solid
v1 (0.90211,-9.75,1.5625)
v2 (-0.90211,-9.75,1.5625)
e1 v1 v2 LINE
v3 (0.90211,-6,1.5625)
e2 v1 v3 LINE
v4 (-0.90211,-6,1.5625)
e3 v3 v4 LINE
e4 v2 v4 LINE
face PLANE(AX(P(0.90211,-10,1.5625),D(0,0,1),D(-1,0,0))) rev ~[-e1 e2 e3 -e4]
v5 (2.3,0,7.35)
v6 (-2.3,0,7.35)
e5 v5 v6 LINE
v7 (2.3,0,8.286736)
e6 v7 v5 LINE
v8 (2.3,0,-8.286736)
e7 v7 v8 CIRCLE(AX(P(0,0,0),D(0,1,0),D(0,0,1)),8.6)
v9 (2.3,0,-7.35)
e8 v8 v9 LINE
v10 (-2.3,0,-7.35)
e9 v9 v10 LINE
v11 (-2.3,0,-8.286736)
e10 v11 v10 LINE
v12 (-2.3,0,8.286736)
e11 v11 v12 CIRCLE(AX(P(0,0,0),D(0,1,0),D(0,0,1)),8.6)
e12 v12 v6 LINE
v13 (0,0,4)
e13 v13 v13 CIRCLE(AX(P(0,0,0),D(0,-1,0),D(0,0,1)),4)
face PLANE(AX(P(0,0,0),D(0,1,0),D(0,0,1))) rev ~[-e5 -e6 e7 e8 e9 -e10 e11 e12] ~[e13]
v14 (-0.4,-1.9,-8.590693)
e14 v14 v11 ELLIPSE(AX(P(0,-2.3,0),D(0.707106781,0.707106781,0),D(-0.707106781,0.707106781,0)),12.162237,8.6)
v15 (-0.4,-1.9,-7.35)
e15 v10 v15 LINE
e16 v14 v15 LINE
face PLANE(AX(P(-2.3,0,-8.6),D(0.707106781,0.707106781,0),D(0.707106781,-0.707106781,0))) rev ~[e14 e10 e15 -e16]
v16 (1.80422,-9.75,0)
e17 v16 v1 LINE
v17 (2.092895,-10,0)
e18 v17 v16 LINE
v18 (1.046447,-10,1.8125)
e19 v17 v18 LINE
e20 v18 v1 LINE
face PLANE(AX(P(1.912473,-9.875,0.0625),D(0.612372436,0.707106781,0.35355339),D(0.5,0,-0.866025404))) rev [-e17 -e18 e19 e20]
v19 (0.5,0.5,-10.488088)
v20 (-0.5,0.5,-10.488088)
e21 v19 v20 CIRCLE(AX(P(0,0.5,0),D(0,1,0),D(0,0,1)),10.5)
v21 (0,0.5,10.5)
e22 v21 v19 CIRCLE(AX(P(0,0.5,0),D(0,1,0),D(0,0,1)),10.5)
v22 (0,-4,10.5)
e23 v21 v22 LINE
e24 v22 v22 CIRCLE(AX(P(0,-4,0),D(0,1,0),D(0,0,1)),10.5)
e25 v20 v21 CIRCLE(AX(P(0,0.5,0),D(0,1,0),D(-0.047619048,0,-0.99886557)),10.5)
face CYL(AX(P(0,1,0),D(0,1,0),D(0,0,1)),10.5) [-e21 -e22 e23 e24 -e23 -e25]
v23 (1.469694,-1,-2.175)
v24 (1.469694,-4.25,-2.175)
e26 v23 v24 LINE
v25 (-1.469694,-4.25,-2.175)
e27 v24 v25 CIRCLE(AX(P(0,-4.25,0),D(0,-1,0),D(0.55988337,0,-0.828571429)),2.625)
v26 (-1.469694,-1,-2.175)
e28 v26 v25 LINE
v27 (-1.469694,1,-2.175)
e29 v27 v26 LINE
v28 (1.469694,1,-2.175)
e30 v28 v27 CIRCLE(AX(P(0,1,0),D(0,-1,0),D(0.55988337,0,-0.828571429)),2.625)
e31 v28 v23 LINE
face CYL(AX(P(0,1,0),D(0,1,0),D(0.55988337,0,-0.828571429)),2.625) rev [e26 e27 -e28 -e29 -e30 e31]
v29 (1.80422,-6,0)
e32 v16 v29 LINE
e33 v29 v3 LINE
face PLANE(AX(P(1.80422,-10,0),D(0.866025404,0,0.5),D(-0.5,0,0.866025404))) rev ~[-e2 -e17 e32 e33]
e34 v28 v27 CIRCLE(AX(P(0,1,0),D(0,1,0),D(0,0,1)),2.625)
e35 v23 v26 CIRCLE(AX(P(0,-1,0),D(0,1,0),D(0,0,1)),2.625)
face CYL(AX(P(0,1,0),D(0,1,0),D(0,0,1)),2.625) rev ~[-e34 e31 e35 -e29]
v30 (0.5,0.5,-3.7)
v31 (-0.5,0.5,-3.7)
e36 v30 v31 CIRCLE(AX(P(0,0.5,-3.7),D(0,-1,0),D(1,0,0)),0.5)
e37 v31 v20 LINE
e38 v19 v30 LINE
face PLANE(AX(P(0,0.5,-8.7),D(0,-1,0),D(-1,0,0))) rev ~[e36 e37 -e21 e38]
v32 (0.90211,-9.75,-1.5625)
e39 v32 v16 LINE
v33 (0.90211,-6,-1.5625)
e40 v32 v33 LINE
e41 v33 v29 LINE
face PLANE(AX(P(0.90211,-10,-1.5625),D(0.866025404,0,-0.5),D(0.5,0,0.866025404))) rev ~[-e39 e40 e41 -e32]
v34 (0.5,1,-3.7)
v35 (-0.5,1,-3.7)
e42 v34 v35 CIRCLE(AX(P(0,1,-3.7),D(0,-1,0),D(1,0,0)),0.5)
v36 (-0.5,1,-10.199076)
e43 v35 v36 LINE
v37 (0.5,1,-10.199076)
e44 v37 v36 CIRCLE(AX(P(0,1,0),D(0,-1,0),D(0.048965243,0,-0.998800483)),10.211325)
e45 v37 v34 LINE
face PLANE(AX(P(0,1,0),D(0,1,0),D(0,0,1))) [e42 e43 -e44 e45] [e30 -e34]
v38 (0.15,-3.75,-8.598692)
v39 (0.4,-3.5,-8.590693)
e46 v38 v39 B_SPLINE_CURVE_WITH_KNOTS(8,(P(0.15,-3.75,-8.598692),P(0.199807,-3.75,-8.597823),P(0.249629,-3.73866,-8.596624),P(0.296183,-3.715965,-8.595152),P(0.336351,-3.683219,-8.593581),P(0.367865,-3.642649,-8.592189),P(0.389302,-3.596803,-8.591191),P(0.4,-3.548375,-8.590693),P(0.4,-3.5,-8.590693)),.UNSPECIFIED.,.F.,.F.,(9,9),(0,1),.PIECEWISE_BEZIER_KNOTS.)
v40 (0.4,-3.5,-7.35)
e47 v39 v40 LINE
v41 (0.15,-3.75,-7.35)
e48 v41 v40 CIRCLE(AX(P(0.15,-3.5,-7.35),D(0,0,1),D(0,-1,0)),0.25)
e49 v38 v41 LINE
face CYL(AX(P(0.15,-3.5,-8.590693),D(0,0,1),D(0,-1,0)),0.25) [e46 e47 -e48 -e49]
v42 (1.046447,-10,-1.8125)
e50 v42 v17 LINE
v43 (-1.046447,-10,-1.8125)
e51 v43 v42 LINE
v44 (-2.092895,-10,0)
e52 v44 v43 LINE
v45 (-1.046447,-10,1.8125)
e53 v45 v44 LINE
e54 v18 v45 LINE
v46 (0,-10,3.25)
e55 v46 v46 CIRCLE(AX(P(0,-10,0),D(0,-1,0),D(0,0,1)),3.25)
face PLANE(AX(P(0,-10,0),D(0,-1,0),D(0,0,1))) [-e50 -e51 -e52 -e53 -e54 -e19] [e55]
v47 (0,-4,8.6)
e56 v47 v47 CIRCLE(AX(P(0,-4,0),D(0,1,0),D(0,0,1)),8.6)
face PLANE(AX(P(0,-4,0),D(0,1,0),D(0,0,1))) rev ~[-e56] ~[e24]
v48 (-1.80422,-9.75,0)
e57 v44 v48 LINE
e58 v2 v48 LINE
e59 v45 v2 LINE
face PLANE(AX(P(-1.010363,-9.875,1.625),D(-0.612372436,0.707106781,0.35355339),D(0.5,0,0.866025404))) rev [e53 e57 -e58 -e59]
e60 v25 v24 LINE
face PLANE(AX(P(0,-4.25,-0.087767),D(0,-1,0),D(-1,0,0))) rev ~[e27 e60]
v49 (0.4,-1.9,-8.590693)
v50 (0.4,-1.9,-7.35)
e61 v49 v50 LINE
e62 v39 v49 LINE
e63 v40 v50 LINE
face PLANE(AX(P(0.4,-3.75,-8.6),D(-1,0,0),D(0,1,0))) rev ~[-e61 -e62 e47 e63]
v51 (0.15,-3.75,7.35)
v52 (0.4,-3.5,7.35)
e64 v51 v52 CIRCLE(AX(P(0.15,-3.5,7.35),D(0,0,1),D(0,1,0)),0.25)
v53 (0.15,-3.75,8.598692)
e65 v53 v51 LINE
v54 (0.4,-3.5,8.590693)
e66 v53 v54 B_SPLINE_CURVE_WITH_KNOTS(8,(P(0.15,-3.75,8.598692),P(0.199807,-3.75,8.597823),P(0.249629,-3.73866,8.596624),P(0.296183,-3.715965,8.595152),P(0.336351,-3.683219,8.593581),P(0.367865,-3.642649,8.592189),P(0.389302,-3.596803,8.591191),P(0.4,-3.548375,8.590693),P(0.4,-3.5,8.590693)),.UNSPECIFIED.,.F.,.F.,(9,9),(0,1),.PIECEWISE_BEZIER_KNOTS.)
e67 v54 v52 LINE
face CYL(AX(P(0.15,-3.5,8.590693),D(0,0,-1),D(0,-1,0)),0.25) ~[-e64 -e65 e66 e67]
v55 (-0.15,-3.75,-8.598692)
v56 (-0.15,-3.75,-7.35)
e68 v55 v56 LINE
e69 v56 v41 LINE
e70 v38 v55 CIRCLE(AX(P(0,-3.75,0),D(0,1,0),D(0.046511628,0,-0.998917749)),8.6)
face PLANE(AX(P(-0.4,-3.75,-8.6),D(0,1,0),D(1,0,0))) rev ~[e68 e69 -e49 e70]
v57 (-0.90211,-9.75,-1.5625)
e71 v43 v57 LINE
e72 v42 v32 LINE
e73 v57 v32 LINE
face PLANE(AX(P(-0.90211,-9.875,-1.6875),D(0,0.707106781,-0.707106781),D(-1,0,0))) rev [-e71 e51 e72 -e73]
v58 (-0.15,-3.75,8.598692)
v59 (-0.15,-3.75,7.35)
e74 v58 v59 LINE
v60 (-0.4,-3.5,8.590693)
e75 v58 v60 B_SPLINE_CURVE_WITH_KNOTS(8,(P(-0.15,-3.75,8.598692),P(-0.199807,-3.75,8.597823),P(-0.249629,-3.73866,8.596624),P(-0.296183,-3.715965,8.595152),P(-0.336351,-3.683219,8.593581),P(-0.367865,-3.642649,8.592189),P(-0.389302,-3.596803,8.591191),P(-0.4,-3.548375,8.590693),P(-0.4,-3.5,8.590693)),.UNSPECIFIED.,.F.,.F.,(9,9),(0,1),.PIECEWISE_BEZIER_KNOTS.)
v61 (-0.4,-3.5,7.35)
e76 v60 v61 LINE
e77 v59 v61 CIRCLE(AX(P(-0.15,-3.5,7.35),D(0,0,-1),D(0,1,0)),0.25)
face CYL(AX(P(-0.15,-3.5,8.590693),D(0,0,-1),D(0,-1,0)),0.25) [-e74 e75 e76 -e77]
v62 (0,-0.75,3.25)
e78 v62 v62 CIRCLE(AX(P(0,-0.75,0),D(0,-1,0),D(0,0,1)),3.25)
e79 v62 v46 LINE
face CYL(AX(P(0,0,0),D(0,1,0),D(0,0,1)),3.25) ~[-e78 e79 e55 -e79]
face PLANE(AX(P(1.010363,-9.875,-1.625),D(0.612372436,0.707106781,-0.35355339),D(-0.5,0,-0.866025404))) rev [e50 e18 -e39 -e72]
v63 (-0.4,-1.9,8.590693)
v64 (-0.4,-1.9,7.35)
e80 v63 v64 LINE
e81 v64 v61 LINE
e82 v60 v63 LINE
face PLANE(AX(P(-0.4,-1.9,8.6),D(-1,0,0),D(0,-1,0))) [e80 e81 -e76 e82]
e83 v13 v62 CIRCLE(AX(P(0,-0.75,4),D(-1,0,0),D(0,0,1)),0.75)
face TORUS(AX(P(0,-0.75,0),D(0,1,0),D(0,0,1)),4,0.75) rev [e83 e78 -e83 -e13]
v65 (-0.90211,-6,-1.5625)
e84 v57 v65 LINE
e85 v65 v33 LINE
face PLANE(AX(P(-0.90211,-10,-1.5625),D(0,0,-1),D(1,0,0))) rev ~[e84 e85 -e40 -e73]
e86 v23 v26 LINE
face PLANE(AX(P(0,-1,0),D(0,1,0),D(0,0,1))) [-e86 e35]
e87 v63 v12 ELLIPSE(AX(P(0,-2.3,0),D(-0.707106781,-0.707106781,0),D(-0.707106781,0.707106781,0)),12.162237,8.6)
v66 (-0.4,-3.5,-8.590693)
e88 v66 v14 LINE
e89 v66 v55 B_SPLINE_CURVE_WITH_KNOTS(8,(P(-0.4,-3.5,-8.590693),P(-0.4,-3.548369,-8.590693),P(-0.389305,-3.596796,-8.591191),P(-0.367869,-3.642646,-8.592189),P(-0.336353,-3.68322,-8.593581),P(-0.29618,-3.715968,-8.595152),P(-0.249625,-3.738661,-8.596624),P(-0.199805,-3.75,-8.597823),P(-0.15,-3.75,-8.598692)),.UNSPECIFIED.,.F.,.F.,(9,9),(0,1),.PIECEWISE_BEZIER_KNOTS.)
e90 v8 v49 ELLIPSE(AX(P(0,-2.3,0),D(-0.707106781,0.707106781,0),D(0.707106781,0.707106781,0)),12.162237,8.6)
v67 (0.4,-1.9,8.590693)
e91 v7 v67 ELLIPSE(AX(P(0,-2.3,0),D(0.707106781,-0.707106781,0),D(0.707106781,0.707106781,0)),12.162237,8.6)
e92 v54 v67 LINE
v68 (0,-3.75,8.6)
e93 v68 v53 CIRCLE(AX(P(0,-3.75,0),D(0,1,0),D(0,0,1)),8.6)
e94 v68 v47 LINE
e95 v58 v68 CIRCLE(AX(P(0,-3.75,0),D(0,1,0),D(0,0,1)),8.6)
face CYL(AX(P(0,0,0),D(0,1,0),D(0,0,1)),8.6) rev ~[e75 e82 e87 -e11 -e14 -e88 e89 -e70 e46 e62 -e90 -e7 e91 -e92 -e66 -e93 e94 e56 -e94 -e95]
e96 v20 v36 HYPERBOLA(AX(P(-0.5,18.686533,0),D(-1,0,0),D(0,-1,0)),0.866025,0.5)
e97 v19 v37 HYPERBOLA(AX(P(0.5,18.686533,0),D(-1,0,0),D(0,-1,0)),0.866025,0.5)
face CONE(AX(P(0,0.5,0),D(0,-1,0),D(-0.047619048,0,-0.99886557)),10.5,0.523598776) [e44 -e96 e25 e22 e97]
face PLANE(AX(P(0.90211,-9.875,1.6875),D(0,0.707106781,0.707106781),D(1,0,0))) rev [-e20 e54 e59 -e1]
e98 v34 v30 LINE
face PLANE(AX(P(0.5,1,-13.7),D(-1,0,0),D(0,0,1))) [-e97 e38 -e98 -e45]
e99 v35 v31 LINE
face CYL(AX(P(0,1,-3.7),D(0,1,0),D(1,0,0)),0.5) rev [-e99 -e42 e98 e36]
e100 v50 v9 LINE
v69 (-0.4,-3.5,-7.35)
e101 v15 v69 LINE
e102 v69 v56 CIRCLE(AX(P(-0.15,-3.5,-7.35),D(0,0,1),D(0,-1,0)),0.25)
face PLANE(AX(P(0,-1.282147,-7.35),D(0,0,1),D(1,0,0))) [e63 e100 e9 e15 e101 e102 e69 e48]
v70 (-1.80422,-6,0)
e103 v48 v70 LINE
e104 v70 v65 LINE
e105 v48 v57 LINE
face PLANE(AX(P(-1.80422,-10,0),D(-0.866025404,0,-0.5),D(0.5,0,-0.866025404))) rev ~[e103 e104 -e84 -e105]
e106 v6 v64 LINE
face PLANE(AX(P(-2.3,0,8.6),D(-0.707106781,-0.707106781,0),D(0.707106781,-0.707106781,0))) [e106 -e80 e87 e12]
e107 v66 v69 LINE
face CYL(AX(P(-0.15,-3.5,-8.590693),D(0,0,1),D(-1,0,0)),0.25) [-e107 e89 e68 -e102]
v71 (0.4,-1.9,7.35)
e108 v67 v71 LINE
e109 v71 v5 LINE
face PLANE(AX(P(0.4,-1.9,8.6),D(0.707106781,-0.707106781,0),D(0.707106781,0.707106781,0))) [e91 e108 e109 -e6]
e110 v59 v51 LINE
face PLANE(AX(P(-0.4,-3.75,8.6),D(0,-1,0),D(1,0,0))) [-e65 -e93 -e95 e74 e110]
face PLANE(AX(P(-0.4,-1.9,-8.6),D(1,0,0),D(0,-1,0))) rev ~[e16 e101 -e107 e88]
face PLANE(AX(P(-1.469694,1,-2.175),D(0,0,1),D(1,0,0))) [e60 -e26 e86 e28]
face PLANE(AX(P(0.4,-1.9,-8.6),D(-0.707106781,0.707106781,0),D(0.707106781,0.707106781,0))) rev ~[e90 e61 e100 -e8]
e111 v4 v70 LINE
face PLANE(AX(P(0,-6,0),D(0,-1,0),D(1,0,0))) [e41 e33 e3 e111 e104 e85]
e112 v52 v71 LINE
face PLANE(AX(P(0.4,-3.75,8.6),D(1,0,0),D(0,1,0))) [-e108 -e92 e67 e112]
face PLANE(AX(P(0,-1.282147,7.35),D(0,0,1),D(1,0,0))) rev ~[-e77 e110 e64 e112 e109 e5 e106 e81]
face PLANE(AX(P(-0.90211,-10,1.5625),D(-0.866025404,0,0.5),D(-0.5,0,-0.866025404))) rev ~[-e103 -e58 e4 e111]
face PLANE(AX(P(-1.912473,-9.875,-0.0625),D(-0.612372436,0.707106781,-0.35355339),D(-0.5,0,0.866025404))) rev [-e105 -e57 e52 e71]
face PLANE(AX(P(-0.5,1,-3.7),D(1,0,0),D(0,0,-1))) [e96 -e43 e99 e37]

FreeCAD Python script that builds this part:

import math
import FreeCAD as App
import Part
import Sketcher
from FreeCAD import Vector
Q = App.Units.Quantity


def edges_at(feature, points):
    """Names of the edges that pass closest to the given points."""
    edges = feature.Shape.Edges
    near = lambda p: min(range(len(edges)), key=lambda i: edges[i].distToShape(Part.Vertex(*p))[0])
    return sorted({f"Edge{near(p) + 1}" for p in points})


def add_polygon(sketch, points):
    """Adds a closed chain of lines whose ends are joined by coincident constraints."""
    first, n = sketch.GeometryCount, len(points)
    for a, b in zip(points, points[1:] + points[:1]):
        sketch.addGeometry(Part.LineSegment(App.Vector(*a, 0), App.Vector(*b, 0)), False)
    for i in range(n):
        sketch.addConstraint(Sketcher.Constraint("Coincident", first + i, 2, first + (i + 1) % n, 1))

doc = App.newDocument("Part")
body = doc.addObject("PartDesign::Body", "Body")

sketch1 = body.newObject("Sketcher::SketchObject", "Sketch")
sketch1.AttachmentSupport = (doc.getObject("XZ_Plane"), [""])
sketch1.MapMode = "FlatFace"
sketch1.addGeometry(Part.Circle(Vector(0, 0, 0), Vector(0, 0, 1), 10), False)
sketch1.addGeometry(Part.Circle(Vector(0, 0, 0), Vector(0, 0, 1), 9), False)
sketch1.addConstraint(Sketcher.Constraint("Coincident", 0, 3, -1, 1))
sketch1.addConstraint(Sketcher.Constraint("Coincident", 1, 3, -1, 1))
sketch1.addConstraint(Sketcher.Constraint("Diameter", 0, Q("21 mm")))
sketch1.addConstraint(Sketcher.Constraint("Diameter", 1, Q("17.2 mm")))
pad1 = body.newObject("PartDesign::Pad", "Pad")
pad1.Profile = sketch1
pad1.Length = 4

sketch2 = body.newObject("Sketcher::SketchObject", "Sketch001")
sketch2.AttachmentSupport = (doc.getObject("XY_Plane"), [""])
sketch2.MapMode = "FlatFace"
sketch2.AttachmentOffset = App.Placement(Vector(0, 0, 8.6), App.Rotation())
add_polygon(sketch2, [(0.4, -3.8), (-0.4, -3.8), (-0.4, -1.9), (-2.3, 0), (2.3, 0), (0.4, -1.9)])
sketch2.addConstraint(Sketcher.Constraint("Horizontal", 0))
sketch2.addConstraint(Sketcher.Constraint("Vertical", 1))
sketch2.addConstraint(Sketcher.Constraint("Horizontal", 3))
sketch2.addConstraint(Sketcher.Constraint("Vertical", 5))
sketch2.addConstraint(Sketcher.Constraint("Symmetric", 2, 2, 3, 2, -1, 1))
sketch2.addConstraint(Sketcher.Constraint("Symmetric", 1, 2, 4, 2, -2))
sketch2.addConstraint(Sketcher.Constraint("Perpendicular", 2, 4))
sketch2.addConstraint(Sketcher.Constraint("DistanceX", 0, 2, 0, 1, Q("0.8 mm")))
sketch2.addConstraint(Sketcher.Constraint("DistanceX", 3, 1, 3, 2, Q("4.6 mm")))
sketch2.addConstraint(Sketcher.Constraint("DistanceY", 1, 1, 1, 2, Q("1.85 mm")))
pad2 = body.newObject("PartDesign::Pad", "Pad001")
pad2.Profile = sketch2
pad2.Length = 1.25
pad2.Reversed = True

sketch3 = body.newObject("Sketcher::SketchObject", "Sketch002")
sketch3.AttachmentSupport = (doc.getObject("XY_Plane"), [""])
sketch3.MapMode = "FlatFace"
sketch3.AttachmentOffset = App.Placement(Vector(0, 0, -8.6), App.Rotation())
add_polygon(sketch3, [(0.4, -3.8), (-0.4, -3.8), (-0.4, -1.9), (-2.3, 0), (2.3, 0), (0.4, -1.9)])
sketch3.addConstraint(Sketcher.Constraint("Horizontal", 0))
sketch3.addConstraint(Sketcher.Constraint("Vertical", 1))
sketch3.addConstraint(Sketcher.Constraint("Horizontal", 3))
sketch3.addConstraint(Sketcher.Constraint("Vertical", 5))
sketch3.addConstraint(Sketcher.Constraint("Symmetric", 2, 2, 3, 2, -1, 1))
sketch3.addConstraint(Sketcher.Constraint("Symmetric", 1, 2, 4, 2, -2))
sketch3.addConstraint(Sketcher.Constraint("Perpendicular", 2, 4))
sketch3.addConstraint(Sketcher.Constraint("DistanceX", 0, 2, 0, 1, Q("0.8 mm")))
sketch3.addConstraint(Sketcher.Constraint("DistanceX", 3, 1, 3, 2, Q("4.6 mm")))
sketch3.addConstraint(Sketcher.Constraint("DistanceY", 1, 1, 1, 2, Q("1.85 mm")))
pad3 = body.newObject("PartDesign::Pad", "Pad002")
pad3.Profile = sketch3
pad3.Length = 1.25

sketch4 = body.newObject("Sketcher::SketchObject", "Sketch003")
sketch4.AttachmentSupport = (doc.getObject("XZ_Plane"), [""])
sketch4.MapMode = "FlatFace"
sketch4.AttachmentOffset = App.Placement(Vector(0, 0, -1), App.Rotation())
sketch4.addGeometry(Part.Circle(Vector(0, 0, 0), Vector(0, 0, 1), 10), False)
sketch4.addConstraint(Sketcher.Constraint("Coincident", 0, 3, -1, 1))
sketch4.addConstraint(Sketcher.Constraint("Diameter", 0, Q("21 mm")))
pad4 = body.newObject("PartDesign::Pad", "Pad003")
pad4.Profile = sketch4
pad4.Length = 1

sketch5 = body.newObject("Sketcher::SketchObject", "Sketch004")
sketch5.AttachmentSupport = (doc.getObject("XZ_Plane"), [""])
sketch5.MapMode = "FlatFace"
sketch5.addGeometry(Part.Circle(Vector(0, 0, 0), Vector(0, 0, 1), 3.2), False)
sketch5.addConstraint(Sketcher.Constraint("Coincident", 0, 3, -1, 1))
sketch5.addConstraint(Sketcher.Constraint("Diameter", 0, Q("6.5 mm")))
pad5 = body.newObject("PartDesign::Pad", "Pad004")
pad5.Profile = sketch5
pad5.Length = 10
doc.recompute()

fillet = body.newObject("PartDesign::Fillet", "Fillet")
fillet.Base = (pad5, edges_at(pad5, [(0, 0, -3.25)]))
fillet.Radius = 0.75

sketch6 = body.newObject("Sketcher::SketchObject", "Sketch005")
sketch6.AttachmentSupport = (doc.getObject("XZ_Plane"), [""])
sketch6.MapMode = "FlatFace"
sketch6.AttachmentOffset = App.Placement(Vector(0, 0, -1), App.Rotation())
sketch6.addGeometry(Part.LineSegment(Vector(1.5, -2.2, 0), Vector(-1.5, -2.2, 0)), False)
sketch6.addGeometry(Part.ArcOfCircle(Part.Circle(Vector(0, 0, 0), Vector(0, 0, 1), 2.6), math.radians(-56), math.radians(236)), False)
sketch6.addConstraint(Sketcher.Constraint("Coincident", 0, 1, 1, 1))
sketch6.addConstraint(Sketcher.Constraint("Coincident", 1, 2, 0, 2))
sketch6.addConstraint(Sketcher.Constraint("Horizontal", 0))
sketch6.addConstraint(Sketcher.Constraint("Coincident", 1, 3, -1, 1))
sketch6.addConstraint(Sketcher.Constraint("Radius", 1, Q("2.625 mm")))
sketch6.addConstraint(Sketcher.Constraint("DistanceY", 0, 1, -1, 1, Q("2.175 mm")))
pocket1 = body.newObject("PartDesign::Pocket", "Pocket")
pocket1.Profile = sketch6
pocket1.Length = 5.25
pocket1.Reversed = True
doc.recompute()

fillet2 = body.newObject("PartDesign::Fillet", "Fillet001")
fillet2.Base = (pocket1, edges_at(pocket1, [
    (-0.4, -3.75, 7.97),
    (0.4, -3.75, 7.97),
    (-0.4, -3.75, -7.97),
    (0.4, -3.75, -7.97),
]))
fillet2.Radius = 0.25

sketch7 = body.newObject("Sketcher::SketchObject", "Sketch006")
sketch7.AttachmentSupport = (doc.getObject("XZ_Plane"), [""])
sketch7.MapMode = "FlatFace"
sketch7.AttachmentOffset = App.Placement(Vector(0, 0, -1), App.Rotation())
sketch7.addGeometry(Part.Circle(Vector(0, 0, 0), Vector(0, 0, 1), 2.6), False)
sketch7.addConstraint(Sketcher.Constraint("Coincident", 0, 3, -1, 1))
sketch7.addConstraint(Sketcher.Constraint("Diameter", 0, Q("5.25 mm")))
pocket2 = body.newObject("PartDesign::Pocket", "Pocket001")
pocket2.Profile = sketch7
pocket2.Length = 2
pocket2.Reversed = True

sketch8 = body.newObject("Sketcher::SketchObject", "Sketch007")
sketch8.AttachmentSupport = (doc.getObject("XZ_Plane"), [""])
sketch8.MapMode = "FlatFace"
sketch8.AttachmentOffset = App.Placement(Vector(0, 0, -1), App.Rotation())
sketch8.addGeometry(Part.LineSegment(Vector(-0.5, -13.7, 0), Vector(-0.5, -3.7, 0)), False)
sketch8.addGeometry(Part.ArcOfCircle(Part.Circle(Vector(0, -3.7, 0), Vector(0, 0, 1), 0.5), math.radians(0), math.radians(180)), False)
sketch8.addGeometry(Part.LineSegment(Vector(0.5, -3.7, 0), Vector(0.5, -13.7, 0)), False)
sketch8.addGeometry(Part.ArcOfCircle(Part.Circle(Vector(0, -13.7, 0), Vector(0, 0, 1), 0.5), math.radians(180), math.radians(360)), False)
sketch8.addConstraint(Sketcher.Constraint("Tangent", 0, 2, 1, 2))
sketch8.addConstraint(Sketcher.Constraint("Tangent", 1, 1, 2, 1))
sketch8.addConstraint(Sketcher.Constraint("Tangent", 2, 2, 3, 2))
sketch8.addConstraint(Sketcher.Constraint("Tangent", 3, 1, 0, 1))
sketch8.addConstraint(Sketcher.Constraint("Vertical", 0))
sketch8.addConstraint(Sketcher.Constraint("Vertical", 2))
sketch8.addConstraint(Sketcher.Constraint("PointOnObject", 1, 3, -2))
sketch8.addConstraint(Sketcher.Constraint("Radius", 1, Q("0.5 mm")))
sketch8.addConstraint(Sketcher.Constraint("DistanceY", 0, 1, 0, 2, Q("10 mm")))
sketch8.addConstraint(Sketcher.Constraint("DistanceY", 1, 3, -1, 1, Q("3.7 mm")))
pocket3 = body.newObject("PartDesign::Pocket", "Pocket002")
pocket3.Profile = sketch8
pocket3.Length = 0.5
pocket3.Reversed = True

sketch9 = body.newObject("Sketcher::SketchObject", "Sketch008")
sketch9.AttachmentSupport = (doc.getObject("XZ_Plane"), [""])
sketch9.MapMode = "FlatFace"
sketch9.AttachmentOffset = App.Placement(Vector(0, 0, 10), App.Rotation())
add_polygon(sketch9, [(1.8, 0), (0.9, 1.6), (-0.9, 1.6), (-1.8, 0), (-0.9, -1.6), (0.9, -1.6)])
sketch9.addConstraint(Sketcher.Constraint("Horizontal", 1))
sketch9.addConstraint(Sketcher.Constraint("Horizontal", 4))
sketch9.addConstraint(Sketcher.Constraint("Symmetric", 0, 2, 3, 2, -1, 1))
sketch9.addConstraint(Sketcher.Constraint("Symmetric", 2, 2, 5, 2, -1, 1))
sketch9.addConstraint(Sketcher.Constraint("PointOnObject", 2, 2, -1))
sketch9.addConstraint(Sketcher.Constraint("Parallel", 2, 5))
sketch9.addConstraint(Sketcher.Constraint("Vertical", 1, 2, 3, 2))
sketch9.addConstraint(Sketcher.Constraint("Angle", 0, Q("120 deg")))
sketch9.addConstraint(Sketcher.Constraint("DistanceY", 3, 2, 1, 2, Q("3.125 mm")))
sketch9.addConstraint(Sketcher.Constraint("DistanceX", 1, 2, 1, 1, Q("1.80422 mm")))
pocket4 = body.newObject("PartDesign::Pocket", "Pocket003")
pocket4.Profile = sketch9
pocket4.Length = 4
doc.recompute()

chamfer = body.newObject("PartDesign::Chamfer", "Chamfer")
chamfer.Base = (pocket4, edges_at(pocket4, [
    (1.353, -10, -0.781),
    (1.353, -10, 0.781),
    (0, -10, 1.562),
    (-1.353, -10, 0.781),
    (-1.353, -10, -0.781),
    (0, -10, -1.562),
]))
chamfer.Size = 0.25
doc.recompute()

chamfer2 = body.newObject("PartDesign::Chamfer", "Chamfer001")
chamfer2.Base = (chamfer, edges_at(chamfer, [(-10.497, 1, 0.25)]))
chamfer2.ChamferType = "Two distances"
chamfer2.Size = 0.5
chamfer2.Size2 = 0.288675

doc.recompute()
